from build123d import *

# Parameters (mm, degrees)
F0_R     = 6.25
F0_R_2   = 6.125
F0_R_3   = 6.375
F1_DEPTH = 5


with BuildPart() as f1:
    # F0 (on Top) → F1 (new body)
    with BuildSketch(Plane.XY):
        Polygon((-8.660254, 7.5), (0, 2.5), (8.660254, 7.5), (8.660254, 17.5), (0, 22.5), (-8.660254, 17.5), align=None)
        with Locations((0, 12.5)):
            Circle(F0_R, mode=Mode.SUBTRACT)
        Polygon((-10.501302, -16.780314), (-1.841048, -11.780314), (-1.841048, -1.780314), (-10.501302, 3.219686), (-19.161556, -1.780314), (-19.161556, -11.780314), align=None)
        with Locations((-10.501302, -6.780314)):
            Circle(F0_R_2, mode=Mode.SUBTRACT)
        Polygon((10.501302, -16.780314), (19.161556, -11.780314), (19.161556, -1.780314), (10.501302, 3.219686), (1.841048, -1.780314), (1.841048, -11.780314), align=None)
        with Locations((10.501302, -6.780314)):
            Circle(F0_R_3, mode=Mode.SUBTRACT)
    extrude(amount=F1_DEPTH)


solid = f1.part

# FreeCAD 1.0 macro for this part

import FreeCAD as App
import Part
import Sketcher
Q = App.Units.Quantity


def add_polygon(sketch, points):
    """Adds a closed chain of lines whose ends are joined by coincident constraints."""
    first, n = sketch.GeometryCount, len(points)
    for a, b in zip(points, points[1:] + points[:1]):
        sketch.addGeometry(Part.LineSegment(App.Vector(*a, 0), App.Vector(*b, 0)), False)
    for i in range(n):
        sketch.addConstraint(Sketcher.Constraint("Coincident", first + i, 2, first + (i + 1) % n, 1))

doc = App.newDocument("Part")
body = doc.addObject("PartDesign::Body", "Body")
body.AllowCompound = True

# Sketch on XY plane
sketch1 = body.newObject("Sketcher::SketchObject", "Sketch")
sketch1.AttachmentSupport = (doc.getObject("XY_Plane"), [""])
sketch1.MapMode = "FlatFace"
add_polygon(sketch1, [(-8.660254, 7.5), (0, 2.5), (8.660254, 7.5), (8.660254, 17.5), (0, 22.5), (-8.660254, 17.5)])  # lines 0-5
sketch1.addGeometry(Part.Circle(App.Vector(0, 12.5, 0), App.Vector(0, 0, 1), 6.25), False)  # 6
add_polygon(sketch1, [(-10.501302, -16.780314), (-1.841048, -11.780314), (-1.841048, -1.780314), (-10.501302, 3.219686), (-19.161556, -1.780314), (-19.161556, -11.780314)])  # lines 7-12
sketch1.addGeometry(Part.Circle(App.Vector(-10.501302, -6.780314, 0), App.Vector(0, 0, 1), 6.125), False)  # 13
add_polygon(sketch1, [(10.501302, -16.780314), (19.161556, -11.780314), (19.161556, -1.780314), (10.501302, 3.219686), (1.841048, -1.780314), (1.841048, -11.780314)])  # lines 14-19
sketch1.addGeometry(Part.Circle(App.Vector(10.501302, -6.780314, 0), App.Vector(0, 0, 1), 6.375), False)  # 20
sketch1.addConstraint(Sketcher.Constraint("Vertical", 2))
sketch1.addConstraint(Sketcher.Constraint("Vertical", 5))
sketch1.addConstraint(Sketcher.Constraint("Vertical", 8))
sketch1.addConstraint(Sketcher.Constraint("Vertical", 11))
sketch1.addConstraint(Sketcher.Constraint("Vertical", 15))
sketch1.addConstraint(Sketcher.Constraint("Vertical", 18))
sketch1.addConstraint(Sketcher.Constraint("Symmetric", 13, 3, 20, 3, -2))
sketch1.addConstraint(Sketcher.Constraint("Symmetric", 2, 2, 4, 2, -2))
sketch1.addConstraint(Sketcher.Constraint("Symmetric", 11, 2, 14, 2, -2))
sketch1.addConstraint(Sketcher.Constraint("Symmetric", 9, 2, 16, 2, -2))
sketch1.addConstraint(Sketcher.Constraint("Symmetric", 8, 2, 17, 2, -2))
sketch1.addConstraint(Sketcher.Constraint("Symmetric", 12, 2, 19, 2, -2))
sketch1.addConstraint(Sketcher.Constraint("PointOnObject", 6, 3, -2))
sketch1.addConstraint(Sketcher.Constraint("PointOnObject", 0, 2, -2))
sketch1.addConstraint(Sketcher.Constraint("PointOnObject", 3, 2, -2))
sketch1.addConstraint(Sketcher.Constraint("Parallel", 0, 3))
sketch1.addConstraint(Sketcher.Constraint("Parallel", 1, 4))
sketch1.addConstraint(Sketcher.Constraint("Parallel", 4, 7))
sketch1.addConstraint(Sketcher.Constraint("Parallel", 3, 9))
sketch1.addConstraint(Sketcher.Constraint("Parallel", 7, 10))
sketch1.addConstraint(Sketcher.Constraint("Parallel", 9, 12))
sketch1.addConstraint(Sketcher.Constraint("Parallel", 12, 16))
sketch1.addConstraint(Sketcher.Constraint("Parallel", 16, 19))
sketch1.addConstraint(Sketcher.Constraint("Horizontal", 8, 2, 10, 2))
sketch1.addConstraint(Sketcher.Constraint("Horizontal", 7, 2, 11, 2))
sketch1.addConstraint(Sketcher.Constraint("Vertical", 13, 3, 9, 2))
sketch1.addConstraint(Sketcher.Constraint("Equal", 5, 8))
sketch1.addConstraint(Sketcher.Constraint("Equal", 4, 7))
sketch1.addConstraint(Sketcher.Constraint("Diameter", 6, Q("12.5 mm")))
sketch1.addConstraint(Sketcher.Constraint("Diameter", 13, Q("12.25 mm")))
sketch1.addConstraint(Sketcher.Constraint("Diameter", 20, Q("12.75 mm")))
sketch1.addConstraint(Sketcher.Constraint("DistanceY", 2, 1, 2, 2, Q("10 mm")))
sketch1.addConstraint(Sketcher.Constraint("Angle", 0, Q("-30 deg")))
sketch1.addConstraint(Sketcher.Constraint("Distance", 0, Q("10 mm")))
sketch1.addConstraint(Sketcher.Constraint("DistanceY", 0, 2, 6, 3, Q("10 mm")))
sketch1.addConstraint(Sketcher.Constraint("DistanceY", 7, 2, 13, 3, Q("5 mm")))
sketch1.addConstraint(Sketcher.Constraint("DistanceY", -1, 1, 6, 3, Q("12.5 mm")))
sketch1.addConstraint(Sketcher.Constraint("DistanceX", 1, 2, 20, 3, Q("1.841048 mm")))
sketch1.addConstraint(Sketcher.Constraint("DistanceY", 13, 3, -1, 1, Q("6.780314 mm")))
pad1 = body.newObject("PartDesign::Pad", "Pad")
pad1.Profile = sketch1
pad1.Length = 5

doc.recompute()
